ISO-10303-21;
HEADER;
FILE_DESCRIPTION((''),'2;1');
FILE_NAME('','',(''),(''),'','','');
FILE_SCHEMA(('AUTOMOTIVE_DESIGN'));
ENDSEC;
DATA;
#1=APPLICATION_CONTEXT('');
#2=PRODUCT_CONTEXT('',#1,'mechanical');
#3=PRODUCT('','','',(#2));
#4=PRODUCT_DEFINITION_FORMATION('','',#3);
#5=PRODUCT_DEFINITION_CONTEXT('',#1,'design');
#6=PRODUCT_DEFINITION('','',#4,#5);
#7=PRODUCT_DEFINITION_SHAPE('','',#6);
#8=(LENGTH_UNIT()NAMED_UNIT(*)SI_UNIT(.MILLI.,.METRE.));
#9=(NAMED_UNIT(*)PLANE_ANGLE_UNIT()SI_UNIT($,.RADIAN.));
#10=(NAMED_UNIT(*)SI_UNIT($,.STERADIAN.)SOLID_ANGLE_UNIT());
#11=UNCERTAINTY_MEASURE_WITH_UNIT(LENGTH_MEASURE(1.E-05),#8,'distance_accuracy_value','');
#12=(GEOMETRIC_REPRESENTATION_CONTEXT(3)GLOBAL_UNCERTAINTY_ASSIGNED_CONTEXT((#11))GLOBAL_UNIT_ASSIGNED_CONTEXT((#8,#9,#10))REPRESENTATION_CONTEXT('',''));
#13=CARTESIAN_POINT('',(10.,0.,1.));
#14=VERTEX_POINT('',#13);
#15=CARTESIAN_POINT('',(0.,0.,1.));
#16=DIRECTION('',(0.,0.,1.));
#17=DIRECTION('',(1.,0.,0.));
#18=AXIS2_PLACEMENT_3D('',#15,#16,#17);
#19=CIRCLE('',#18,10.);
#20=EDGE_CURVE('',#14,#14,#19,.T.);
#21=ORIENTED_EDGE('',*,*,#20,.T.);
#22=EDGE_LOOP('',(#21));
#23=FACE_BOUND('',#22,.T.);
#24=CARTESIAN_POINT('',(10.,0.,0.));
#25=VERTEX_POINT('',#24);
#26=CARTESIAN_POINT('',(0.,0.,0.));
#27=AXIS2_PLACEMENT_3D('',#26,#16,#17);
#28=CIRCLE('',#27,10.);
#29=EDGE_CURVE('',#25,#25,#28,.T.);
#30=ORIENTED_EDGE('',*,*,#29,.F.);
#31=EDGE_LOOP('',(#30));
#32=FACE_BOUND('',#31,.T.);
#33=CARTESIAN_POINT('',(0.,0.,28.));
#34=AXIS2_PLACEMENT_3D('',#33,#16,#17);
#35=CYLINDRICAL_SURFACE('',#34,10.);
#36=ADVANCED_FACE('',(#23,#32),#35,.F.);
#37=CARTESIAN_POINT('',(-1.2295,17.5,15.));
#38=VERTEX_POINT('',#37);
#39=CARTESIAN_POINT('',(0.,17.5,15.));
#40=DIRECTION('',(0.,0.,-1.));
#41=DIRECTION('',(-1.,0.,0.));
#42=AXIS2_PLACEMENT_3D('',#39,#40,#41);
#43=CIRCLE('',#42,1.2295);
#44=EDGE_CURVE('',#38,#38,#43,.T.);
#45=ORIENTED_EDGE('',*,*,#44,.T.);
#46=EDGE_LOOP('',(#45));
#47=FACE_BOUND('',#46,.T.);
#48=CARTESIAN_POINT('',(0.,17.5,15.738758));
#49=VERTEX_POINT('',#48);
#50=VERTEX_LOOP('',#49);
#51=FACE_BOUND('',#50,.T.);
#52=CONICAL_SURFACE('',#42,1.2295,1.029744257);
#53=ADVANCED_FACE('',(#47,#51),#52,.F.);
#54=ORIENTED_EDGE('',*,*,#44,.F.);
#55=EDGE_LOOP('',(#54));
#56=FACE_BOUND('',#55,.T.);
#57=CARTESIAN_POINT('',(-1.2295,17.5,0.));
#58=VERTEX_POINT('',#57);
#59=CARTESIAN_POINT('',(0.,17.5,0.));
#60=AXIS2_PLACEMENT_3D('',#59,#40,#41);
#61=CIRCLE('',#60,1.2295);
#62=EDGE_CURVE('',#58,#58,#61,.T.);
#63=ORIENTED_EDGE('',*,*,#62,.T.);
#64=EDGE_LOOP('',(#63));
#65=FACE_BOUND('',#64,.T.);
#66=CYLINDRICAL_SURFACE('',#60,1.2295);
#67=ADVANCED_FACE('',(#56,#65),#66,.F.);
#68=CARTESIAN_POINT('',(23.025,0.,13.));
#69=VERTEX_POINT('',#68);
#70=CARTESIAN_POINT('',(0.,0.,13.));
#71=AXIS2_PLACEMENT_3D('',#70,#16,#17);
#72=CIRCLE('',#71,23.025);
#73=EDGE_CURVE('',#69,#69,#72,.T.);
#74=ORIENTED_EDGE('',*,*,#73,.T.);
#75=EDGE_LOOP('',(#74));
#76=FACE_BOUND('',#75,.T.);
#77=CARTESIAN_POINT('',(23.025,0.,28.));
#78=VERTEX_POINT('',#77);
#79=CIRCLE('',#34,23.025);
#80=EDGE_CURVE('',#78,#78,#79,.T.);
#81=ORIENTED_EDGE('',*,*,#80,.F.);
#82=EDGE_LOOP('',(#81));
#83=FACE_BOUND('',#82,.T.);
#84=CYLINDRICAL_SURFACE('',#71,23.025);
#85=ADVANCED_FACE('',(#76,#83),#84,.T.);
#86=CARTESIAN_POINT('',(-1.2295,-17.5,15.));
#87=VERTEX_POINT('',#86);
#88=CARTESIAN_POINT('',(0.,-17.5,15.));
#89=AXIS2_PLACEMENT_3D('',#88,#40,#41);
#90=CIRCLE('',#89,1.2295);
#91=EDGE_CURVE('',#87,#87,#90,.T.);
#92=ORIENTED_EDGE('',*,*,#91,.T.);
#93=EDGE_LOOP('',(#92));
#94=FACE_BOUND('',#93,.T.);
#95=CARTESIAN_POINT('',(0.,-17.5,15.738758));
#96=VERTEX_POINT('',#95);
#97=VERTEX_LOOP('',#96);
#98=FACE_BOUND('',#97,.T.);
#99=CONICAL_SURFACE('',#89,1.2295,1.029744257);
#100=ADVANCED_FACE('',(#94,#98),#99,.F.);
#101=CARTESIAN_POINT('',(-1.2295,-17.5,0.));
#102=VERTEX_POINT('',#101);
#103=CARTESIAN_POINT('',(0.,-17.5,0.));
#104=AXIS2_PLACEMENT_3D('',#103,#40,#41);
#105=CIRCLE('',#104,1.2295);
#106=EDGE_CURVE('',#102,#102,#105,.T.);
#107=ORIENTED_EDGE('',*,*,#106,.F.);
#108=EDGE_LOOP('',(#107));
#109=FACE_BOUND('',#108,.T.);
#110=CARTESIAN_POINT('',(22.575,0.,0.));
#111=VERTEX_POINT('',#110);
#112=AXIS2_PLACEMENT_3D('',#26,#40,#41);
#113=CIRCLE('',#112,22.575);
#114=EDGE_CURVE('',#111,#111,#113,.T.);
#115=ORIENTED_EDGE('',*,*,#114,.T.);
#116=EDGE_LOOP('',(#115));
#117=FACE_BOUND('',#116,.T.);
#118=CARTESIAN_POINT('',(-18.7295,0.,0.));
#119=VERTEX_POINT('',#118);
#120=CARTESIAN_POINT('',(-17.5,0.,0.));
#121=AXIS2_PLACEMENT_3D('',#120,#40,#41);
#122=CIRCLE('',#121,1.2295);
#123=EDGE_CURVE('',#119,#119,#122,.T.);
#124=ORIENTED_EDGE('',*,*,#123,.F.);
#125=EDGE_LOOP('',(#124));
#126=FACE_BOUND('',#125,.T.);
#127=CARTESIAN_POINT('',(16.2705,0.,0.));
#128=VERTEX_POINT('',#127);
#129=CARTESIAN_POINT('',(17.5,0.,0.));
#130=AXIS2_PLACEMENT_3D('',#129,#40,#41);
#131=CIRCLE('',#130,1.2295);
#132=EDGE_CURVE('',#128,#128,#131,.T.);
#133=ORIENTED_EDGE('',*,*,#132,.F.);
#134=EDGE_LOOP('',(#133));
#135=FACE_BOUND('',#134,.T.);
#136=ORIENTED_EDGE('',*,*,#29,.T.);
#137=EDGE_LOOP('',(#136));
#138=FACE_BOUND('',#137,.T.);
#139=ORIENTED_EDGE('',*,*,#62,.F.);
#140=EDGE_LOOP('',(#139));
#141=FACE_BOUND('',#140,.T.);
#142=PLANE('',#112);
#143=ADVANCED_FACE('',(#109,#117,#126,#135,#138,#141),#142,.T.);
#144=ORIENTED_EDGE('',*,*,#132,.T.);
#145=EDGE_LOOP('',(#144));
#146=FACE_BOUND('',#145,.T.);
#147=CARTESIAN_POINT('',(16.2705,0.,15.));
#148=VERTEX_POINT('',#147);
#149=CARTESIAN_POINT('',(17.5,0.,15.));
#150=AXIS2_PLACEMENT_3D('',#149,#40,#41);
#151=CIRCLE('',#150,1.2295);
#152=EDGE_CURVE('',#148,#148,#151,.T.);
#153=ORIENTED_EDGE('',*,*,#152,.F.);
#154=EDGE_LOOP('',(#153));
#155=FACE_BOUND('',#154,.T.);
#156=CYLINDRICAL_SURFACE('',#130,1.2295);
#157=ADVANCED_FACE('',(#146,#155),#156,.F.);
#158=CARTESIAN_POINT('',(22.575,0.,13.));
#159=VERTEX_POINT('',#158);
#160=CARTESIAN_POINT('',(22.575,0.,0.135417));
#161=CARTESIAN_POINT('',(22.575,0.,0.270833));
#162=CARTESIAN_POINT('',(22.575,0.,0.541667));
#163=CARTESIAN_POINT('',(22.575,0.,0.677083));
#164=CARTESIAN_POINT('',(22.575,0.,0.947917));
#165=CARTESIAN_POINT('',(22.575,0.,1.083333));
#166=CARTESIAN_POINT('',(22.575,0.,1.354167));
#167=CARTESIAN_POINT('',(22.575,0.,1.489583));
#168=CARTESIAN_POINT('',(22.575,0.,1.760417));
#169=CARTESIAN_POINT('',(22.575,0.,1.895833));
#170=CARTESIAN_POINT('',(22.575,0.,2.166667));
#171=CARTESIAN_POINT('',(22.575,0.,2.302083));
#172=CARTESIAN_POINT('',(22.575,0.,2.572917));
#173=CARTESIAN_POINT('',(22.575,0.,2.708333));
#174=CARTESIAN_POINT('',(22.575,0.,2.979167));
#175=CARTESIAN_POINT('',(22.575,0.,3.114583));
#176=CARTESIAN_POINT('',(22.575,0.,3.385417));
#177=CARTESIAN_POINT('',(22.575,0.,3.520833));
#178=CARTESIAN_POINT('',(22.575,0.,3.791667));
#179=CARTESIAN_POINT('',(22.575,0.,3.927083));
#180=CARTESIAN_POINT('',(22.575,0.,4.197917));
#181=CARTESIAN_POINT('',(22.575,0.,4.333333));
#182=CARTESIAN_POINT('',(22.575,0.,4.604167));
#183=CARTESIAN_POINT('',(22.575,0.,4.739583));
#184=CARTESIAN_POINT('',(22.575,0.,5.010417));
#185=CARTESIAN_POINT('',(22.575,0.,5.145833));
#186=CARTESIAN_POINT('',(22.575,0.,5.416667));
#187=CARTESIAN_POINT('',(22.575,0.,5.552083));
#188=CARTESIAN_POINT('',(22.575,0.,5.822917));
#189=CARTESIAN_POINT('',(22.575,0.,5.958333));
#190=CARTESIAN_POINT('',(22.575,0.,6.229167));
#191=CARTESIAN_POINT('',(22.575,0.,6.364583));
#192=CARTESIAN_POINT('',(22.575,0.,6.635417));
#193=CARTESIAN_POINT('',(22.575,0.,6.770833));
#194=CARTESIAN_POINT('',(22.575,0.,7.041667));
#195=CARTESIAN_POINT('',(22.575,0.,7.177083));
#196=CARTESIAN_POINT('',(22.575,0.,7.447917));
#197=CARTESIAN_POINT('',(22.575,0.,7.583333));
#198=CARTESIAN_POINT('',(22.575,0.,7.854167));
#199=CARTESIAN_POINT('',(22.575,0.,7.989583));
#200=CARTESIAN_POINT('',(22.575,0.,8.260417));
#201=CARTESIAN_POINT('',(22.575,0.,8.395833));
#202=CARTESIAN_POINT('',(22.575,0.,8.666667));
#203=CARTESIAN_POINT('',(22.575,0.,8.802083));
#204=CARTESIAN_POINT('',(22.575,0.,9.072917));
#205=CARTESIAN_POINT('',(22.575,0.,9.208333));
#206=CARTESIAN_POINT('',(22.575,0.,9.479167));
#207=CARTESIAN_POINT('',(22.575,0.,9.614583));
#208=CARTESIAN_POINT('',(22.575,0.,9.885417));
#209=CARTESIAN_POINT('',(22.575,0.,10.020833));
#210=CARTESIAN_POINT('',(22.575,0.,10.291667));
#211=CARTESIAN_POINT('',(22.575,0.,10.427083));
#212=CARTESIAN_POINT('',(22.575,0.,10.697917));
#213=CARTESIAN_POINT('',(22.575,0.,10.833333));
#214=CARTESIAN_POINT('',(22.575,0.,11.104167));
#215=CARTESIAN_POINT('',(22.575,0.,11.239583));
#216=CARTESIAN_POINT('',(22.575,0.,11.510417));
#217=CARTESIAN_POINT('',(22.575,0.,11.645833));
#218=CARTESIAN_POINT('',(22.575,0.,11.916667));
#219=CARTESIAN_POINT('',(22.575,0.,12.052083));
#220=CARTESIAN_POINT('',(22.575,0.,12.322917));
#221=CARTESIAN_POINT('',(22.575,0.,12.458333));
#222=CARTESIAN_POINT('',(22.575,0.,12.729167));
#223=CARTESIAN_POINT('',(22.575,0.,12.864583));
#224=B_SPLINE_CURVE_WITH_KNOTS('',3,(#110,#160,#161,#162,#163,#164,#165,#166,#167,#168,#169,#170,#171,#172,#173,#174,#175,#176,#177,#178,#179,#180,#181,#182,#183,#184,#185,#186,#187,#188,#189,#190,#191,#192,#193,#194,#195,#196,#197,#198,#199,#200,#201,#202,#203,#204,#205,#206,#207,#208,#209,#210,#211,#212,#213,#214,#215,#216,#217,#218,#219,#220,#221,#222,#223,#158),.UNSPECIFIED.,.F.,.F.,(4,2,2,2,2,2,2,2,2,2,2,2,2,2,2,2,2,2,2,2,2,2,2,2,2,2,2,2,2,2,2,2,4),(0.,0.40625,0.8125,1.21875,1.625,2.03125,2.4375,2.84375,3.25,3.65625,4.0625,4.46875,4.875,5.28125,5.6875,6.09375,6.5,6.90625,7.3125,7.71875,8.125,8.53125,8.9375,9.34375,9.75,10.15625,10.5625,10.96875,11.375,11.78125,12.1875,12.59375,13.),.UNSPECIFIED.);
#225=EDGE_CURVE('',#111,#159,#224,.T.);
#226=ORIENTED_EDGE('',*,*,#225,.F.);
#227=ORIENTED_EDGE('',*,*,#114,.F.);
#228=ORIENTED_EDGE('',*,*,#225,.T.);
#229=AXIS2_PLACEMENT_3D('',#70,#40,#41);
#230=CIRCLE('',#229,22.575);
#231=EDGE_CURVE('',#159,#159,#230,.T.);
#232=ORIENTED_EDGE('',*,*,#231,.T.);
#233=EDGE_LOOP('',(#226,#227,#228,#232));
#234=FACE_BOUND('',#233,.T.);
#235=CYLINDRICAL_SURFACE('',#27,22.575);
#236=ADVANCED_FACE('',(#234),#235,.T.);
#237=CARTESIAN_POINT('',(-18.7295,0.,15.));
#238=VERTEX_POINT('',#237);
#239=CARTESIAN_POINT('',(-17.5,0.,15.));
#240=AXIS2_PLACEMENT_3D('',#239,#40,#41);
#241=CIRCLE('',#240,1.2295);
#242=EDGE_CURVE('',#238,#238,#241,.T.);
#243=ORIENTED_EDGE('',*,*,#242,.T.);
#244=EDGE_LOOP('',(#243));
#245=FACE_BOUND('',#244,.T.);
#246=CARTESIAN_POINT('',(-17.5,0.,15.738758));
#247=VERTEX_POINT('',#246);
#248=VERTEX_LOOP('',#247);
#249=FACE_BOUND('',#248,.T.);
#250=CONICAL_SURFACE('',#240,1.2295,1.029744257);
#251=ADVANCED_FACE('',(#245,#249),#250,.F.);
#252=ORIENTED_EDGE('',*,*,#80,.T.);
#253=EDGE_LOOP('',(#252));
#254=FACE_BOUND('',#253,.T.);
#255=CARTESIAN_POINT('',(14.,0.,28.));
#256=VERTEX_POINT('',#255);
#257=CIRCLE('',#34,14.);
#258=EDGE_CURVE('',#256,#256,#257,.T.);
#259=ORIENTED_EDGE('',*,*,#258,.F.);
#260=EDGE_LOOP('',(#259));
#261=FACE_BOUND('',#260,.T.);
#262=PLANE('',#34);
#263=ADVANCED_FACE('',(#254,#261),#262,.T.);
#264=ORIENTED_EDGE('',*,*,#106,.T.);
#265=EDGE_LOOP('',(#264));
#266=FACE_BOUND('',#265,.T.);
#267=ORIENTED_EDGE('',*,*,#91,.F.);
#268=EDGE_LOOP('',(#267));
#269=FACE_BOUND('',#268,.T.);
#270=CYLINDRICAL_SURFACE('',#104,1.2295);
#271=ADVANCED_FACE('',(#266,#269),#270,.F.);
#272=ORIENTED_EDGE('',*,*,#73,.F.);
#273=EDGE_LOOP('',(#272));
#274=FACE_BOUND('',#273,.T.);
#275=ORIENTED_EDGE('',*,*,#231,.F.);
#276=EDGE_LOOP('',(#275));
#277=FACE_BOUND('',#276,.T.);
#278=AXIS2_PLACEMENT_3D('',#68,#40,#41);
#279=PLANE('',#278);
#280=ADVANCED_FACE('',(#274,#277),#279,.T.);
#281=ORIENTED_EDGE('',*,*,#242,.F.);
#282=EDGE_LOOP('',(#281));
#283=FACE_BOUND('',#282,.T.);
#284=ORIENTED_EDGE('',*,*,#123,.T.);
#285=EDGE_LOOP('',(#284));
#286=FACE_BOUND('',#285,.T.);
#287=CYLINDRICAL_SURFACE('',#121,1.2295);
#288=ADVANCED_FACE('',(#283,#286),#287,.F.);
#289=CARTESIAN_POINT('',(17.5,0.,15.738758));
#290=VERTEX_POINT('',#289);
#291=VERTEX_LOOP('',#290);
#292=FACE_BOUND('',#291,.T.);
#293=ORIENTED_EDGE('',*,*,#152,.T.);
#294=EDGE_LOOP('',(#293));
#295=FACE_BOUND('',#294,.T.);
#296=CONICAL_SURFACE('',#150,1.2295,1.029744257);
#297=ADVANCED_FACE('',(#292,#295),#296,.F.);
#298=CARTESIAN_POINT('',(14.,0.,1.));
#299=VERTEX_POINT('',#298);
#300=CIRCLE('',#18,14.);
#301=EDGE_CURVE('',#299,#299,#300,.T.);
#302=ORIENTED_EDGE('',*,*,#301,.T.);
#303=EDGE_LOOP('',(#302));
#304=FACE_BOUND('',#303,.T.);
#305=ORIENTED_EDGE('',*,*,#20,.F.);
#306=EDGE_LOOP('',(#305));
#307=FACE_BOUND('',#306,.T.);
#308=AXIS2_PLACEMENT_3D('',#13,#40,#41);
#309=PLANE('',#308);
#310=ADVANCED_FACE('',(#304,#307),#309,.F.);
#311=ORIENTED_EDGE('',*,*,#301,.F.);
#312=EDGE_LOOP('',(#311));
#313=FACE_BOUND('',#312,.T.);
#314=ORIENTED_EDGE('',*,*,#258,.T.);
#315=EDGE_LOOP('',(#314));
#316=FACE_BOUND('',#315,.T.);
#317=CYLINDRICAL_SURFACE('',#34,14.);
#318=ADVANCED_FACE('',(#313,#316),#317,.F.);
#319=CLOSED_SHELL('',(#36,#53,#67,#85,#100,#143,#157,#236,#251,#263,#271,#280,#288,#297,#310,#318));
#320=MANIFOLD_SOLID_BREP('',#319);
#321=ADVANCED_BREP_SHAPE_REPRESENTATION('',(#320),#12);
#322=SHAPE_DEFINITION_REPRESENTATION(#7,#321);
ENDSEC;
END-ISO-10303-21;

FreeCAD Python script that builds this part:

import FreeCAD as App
import Part
import Sketcher

V = App.Vector

doc = App.newDocument("Part")
body = doc.addObject("PartDesign::Body", "Body")

# Sketch on XZ plane
sketch1 = doc.addObject("Sketcher::SketchObject", "Sketch")
body.addObject(sketch1)
sketch1.AttachmentSupport = (doc.XZ_Plane, [""])
sketch1.MapMode = "FlatFace"
sketch1.addGeometry([
    Part.LineSegment(V(0, 13, 0), V(0, 28, 0)),
    Part.LineSegment(V(0, 28, 0), V(23, 28, 0)),
    Part.LineSegment(V(23, 28, 0), V(23, 13, 0)),
    Part.LineSegment(V(23, 13, 0), V(0, 13, 0)),
], False)
sketch1.addConstraint([
    Sketcher.Constraint("Coincident", 0, 2, 1, 1),
    Sketcher.Constraint("Coincident", 1, 2, 2, 1),
    Sketcher.Constraint("Coincident", 2, 2, 3, 1),
    Sketcher.Constraint("Coincident", 3, 2, 0, 1),
    Sketcher.Constraint("Vertical", 0),
    Sketcher.Constraint("Horizontal", 1),
    Sketcher.Constraint("Vertical", 2),
    Sketcher.Constraint("Horizontal", 3),
    Sketcher.Constraint("PointOnObject", 0, 2, -2),
    Sketcher.Constraint("DistanceY", 0, 1, 0, 2, 15.0),
    Sketcher.Constraint("DistanceY", -1, 1, 0, 2, 28.0),
    Sketcher.Constraint("DistanceX", 1, 1, 1, 2, 23.025),
])
revolution = doc.addObject("PartDesign::Revolution", "Revolution")
body.addObject(revolution)
revolution.Profile = sketch1
revolution.ReferenceAxis = (sketch1, ["V_Axis"])
revolution.Angle = 360

# Sketch on XY plane
sketch2 = doc.addObject("Sketcher::SketchObject", "Sketch001")
body.addObject(sketch2)
sketch2.AttachmentSupport = (doc.XY_Plane, [""])
sketch2.MapMode = "FlatFace"
sketch2.AttachmentOffset = App.Placement(V(0, 0, 13), App.Rotation())
sketch2.addGeometry(Part.Circle(V(0, 0, 0), V(0, 0, 1), 23), False)
sketch2.addConstraint([
    Sketcher.Constraint("Coincident", 0, 3, -1, 1),
    Sketcher.Constraint("Diameter", 0, 45.15),
])
pad1 = doc.addObject("PartDesign::Pad", "Pad")
body.addObject(pad1)
pad1.Profile = sketch2
pad1.Length = 13
pad1.Reversed = True

# Sketch on XY plane
sketch3 = doc.addObject("Sketcher::SketchObject", "Sketch002")
body.addObject(sketch3)
sketch3.AttachmentSupport = (doc.XY_Plane, [""])
sketch3.MapMode = "FlatFace"
sketch3.AttachmentOffset = App.Placement(V(0, 0, 28), App.Rotation())
sketch3.addGeometry(Part.Circle(V(0, 0, 0), V(0, 0, 1), 10), False)
sketch3.addConstraint([
    Sketcher.Constraint("Coincident", 0, 3, -1, 1),
    Sketcher.Constraint("Diameter", 0, 20.0),
])
doc.recompute()
hole = doc.addObject("PartDesign::Hole", "Hole")
body.addObject(hole)
hole.Profile = sketch3
hole.ThreadType = "None"
hole.Diameter = 20
hole.DepthType = "ThroughAll"
hole.HoleCutType = "Counterbore"
hole.HoleCutDiameter = 28
hole.HoleCutDepth = 27

# Sketch on XY plane
sketch4 = doc.addObject("Sketcher::SketchObject", "Sketch003")
body.addObject(sketch4)
sketch4.AttachmentSupport = (doc.XY_Plane, [""])
sketch4.MapMode = "FlatFace"
sketch4.addGeometry([
    Part.Circle(V(0, 17.5, 0), V(0, 0, 1), 1.2),
    Part.Circle(V(17.5, 0, 0), V(0, 0, 1), 1.2),
    Part.Circle(V(0, -17.5, 0), V(0, 0, 1), 1.2),
    Part.Circle(V(-17.5, 0, 0), V(0, 0, 1), 1.2),
], False)
sketch4.addConstraint([
    Sketcher.Constraint("Equal", 0, 1),
    Sketcher.Constraint("Equal", 1, 2),
    Sketcher.Constraint("Equal", 2, 3),
    Sketcher.Constraint("Symmetric", 0, 3, 2, 3, -1, 1),
    Sketcher.Constraint("Symmetric", 1, 3, 3, 3, -1, 1),
    Sketcher.Constraint("PointOnObject", 0, 3, -2),
    Sketcher.Constraint("PointOnObject", 1, 3, -1),
    Sketcher.Constraint("Diameter", 0, 2.459),
    Sketcher.Constraint("DistanceY", 2, 3, 0, 3, 35.0),
    Sketcher.Constraint("DistanceX", 3, 3, 1, 3, 35.0),
])
doc.recompute()
hole2 = doc.addObject("PartDesign::Hole", "Hole001")
body.addObject(hole2)
hole2.Profile = sketch4
hole2.ThreadType = "None"
hole2.Diameter = 2.459
hole2.DepthType = "Dimension"
hole2.Depth = 15
hole2.DrillPoint = "Angled"
hole2.DrillPointAngle = 118
hole2.Reversed = True

doc.recompute()
